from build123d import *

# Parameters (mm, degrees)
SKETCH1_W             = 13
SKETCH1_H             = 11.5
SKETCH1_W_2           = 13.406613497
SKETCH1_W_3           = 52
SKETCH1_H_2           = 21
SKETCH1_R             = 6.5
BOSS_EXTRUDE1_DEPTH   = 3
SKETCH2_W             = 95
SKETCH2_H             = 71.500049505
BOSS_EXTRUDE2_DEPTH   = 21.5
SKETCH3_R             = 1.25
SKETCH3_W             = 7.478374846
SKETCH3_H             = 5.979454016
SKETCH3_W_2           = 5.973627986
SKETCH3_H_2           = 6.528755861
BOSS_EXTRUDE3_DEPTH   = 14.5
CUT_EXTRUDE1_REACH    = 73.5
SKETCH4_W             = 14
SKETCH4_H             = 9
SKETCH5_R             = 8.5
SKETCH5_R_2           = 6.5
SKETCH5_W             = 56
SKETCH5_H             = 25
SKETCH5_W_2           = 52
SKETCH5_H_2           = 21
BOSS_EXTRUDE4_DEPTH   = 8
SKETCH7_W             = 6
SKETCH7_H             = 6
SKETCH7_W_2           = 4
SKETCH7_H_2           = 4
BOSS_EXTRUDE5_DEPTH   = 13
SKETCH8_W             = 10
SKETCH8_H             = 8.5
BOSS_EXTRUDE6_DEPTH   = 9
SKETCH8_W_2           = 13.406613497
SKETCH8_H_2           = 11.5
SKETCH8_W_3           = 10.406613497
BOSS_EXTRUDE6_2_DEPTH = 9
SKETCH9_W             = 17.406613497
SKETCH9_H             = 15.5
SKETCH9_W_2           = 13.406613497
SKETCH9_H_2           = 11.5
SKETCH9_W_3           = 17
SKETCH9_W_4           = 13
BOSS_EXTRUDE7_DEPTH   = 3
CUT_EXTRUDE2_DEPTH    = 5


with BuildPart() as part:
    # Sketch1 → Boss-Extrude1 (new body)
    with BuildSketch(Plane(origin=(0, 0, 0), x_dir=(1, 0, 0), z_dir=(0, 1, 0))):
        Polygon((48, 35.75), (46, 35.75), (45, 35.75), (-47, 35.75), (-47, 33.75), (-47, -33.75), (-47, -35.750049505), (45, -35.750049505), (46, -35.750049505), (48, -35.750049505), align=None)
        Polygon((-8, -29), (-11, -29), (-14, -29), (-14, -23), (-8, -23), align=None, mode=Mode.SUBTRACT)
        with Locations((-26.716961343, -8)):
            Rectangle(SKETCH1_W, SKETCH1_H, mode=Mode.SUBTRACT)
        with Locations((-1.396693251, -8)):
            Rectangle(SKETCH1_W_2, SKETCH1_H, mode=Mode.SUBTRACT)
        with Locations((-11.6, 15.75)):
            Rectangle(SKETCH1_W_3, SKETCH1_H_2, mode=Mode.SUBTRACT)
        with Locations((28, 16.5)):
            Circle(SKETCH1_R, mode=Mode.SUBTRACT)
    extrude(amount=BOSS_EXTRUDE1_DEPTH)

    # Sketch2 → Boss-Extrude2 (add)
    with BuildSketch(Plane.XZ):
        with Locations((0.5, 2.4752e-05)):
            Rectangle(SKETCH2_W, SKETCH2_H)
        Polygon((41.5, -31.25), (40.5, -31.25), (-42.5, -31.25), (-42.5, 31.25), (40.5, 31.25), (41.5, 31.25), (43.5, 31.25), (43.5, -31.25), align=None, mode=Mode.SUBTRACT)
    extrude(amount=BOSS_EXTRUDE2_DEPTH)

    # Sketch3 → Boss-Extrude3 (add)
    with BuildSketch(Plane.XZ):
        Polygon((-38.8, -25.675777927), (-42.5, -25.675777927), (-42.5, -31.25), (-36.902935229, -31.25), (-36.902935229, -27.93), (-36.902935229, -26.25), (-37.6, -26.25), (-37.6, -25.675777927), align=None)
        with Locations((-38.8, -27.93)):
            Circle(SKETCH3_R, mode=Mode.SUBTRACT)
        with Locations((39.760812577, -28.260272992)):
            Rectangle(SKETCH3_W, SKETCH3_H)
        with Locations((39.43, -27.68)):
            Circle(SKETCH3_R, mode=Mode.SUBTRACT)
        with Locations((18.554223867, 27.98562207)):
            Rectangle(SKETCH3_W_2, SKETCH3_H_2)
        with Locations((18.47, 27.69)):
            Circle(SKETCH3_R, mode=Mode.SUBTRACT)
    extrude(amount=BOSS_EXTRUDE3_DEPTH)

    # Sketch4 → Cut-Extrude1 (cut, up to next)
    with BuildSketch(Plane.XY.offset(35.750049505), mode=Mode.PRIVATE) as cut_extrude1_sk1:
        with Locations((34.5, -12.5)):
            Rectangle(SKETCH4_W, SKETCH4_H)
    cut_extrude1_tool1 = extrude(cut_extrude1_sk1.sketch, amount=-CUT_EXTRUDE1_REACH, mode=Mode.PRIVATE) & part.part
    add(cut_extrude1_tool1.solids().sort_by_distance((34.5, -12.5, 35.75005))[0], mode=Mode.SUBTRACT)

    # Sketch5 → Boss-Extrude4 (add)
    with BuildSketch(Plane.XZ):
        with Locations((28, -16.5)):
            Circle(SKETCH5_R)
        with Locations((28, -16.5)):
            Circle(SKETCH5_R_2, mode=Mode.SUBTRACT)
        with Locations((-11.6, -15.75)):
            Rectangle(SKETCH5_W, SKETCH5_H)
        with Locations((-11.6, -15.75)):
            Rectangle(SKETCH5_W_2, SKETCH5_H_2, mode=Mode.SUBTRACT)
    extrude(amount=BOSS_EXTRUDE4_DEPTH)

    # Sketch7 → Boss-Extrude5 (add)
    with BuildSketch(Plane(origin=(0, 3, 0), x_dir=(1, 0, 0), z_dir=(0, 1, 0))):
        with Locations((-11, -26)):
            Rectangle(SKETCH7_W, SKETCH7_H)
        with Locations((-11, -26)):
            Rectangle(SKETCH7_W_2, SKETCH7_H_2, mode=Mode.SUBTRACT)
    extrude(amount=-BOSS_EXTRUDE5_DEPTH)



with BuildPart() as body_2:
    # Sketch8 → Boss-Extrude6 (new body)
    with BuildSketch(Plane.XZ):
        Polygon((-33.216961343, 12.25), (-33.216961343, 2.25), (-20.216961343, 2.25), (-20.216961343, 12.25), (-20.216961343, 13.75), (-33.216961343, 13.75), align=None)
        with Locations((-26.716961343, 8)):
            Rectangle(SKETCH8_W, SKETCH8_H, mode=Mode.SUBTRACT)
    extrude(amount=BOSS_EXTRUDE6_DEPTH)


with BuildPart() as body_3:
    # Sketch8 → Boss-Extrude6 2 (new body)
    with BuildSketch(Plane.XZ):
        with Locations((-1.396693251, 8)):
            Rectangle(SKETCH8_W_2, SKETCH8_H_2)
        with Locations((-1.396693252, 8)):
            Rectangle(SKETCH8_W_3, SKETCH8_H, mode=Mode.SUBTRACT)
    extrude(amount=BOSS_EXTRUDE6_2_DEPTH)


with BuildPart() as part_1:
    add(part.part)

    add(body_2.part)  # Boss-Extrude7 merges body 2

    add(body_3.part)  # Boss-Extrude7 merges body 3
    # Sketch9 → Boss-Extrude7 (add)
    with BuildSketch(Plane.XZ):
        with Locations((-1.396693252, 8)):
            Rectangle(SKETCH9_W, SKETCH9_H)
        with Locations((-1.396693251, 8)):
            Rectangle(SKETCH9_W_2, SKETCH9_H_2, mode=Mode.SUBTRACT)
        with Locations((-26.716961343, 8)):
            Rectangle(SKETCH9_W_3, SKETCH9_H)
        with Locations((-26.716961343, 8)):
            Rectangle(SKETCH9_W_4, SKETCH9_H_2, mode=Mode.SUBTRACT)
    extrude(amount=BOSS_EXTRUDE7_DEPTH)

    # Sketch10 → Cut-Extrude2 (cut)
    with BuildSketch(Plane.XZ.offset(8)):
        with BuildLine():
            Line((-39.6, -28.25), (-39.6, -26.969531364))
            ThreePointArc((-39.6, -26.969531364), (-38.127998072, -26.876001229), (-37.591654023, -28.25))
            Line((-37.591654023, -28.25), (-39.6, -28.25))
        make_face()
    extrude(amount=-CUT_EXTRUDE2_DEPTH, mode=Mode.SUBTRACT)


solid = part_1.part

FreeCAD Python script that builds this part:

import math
import FreeCAD as App
import Part
import Sketcher


def add_polygon(sketch, points):
    """Adds a closed chain of lines whose ends are joined by coincident constraints."""
    first, n = sketch.GeometryCount, len(points)
    for a, b in zip(points, points[1:] + points[:1]):
        sketch.addGeometry(Part.LineSegment(App.Vector(*a, 0), App.Vector(*b, 0)), False)
    for i in range(n):
        sketch.addConstraint(Sketcher.Constraint("Coincident", first + i, 2, first + (i + 1) % n, 1))

doc = App.newDocument("Part")
body = doc.addObject("PartDesign::Body", "Body")

# Sketch on XZ plane
sketch1 = doc.addObject("Sketcher::SketchObject", "Sketch")
body.addObject(sketch1)
sketch1.AttachmentSupport = (doc.XZ_Plane, [""])
sketch1.MapMode = "FlatFace"
add_polygon(sketch1, [(48, -36), (-47, -36), (-47, 36), (48, 36)])  # lines 0-3
add_polygon(sketch1, [(-8, 23), (-8, 29), (-14, 29), (-14, 23)])  # lines 4-7
add_polygon(sketch1, [(-20, 14), (-33, 14), (-33, 2), (-20, 2)])  # lines 8-11
add_polygon(sketch1, [(5, 14), (-8, 14), (-8, 2), (5, 2)])  # lines 12-15
add_polygon(sketch1, [(14, -5), (-38, -5), (-38, -26), (14, -26)])  # lines 16-19
sketch1.addGeometry(Part.Circle(App.Vector(28, -16, 0), App.Vector(0, 0, 1), 6), False)  # 20
sketch1.addConstraint([
    Sketcher.Constraint("Horizontal", 0),
    Sketcher.Constraint("Vertical", 1),
    Sketcher.Constraint("Horizontal", 2),
    Sketcher.Constraint("Vertical", 3),
    Sketcher.Constraint("Vertical", 4),
    Sketcher.Constraint("Horizontal", 5),
    Sketcher.Constraint("Vertical", 6),
    Sketcher.Constraint("Horizontal", 7),
    Sketcher.Constraint("Horizontal", 8),
    Sketcher.Constraint("Vertical", 9),
    Sketcher.Constraint("Horizontal", 10),
    Sketcher.Constraint("Vertical", 11),
    Sketcher.Constraint("Horizontal", 12),
    Sketcher.Constraint("Vertical", 13),
    Sketcher.Constraint("Horizontal", 14),
    Sketcher.Constraint("Vertical", 15),
    Sketcher.Constraint("Horizontal", 16),
    Sketcher.Constraint("Vertical", 17),
    Sketcher.Constraint("Horizontal", 18),
    Sketcher.Constraint("Vertical", 19),
    Sketcher.Constraint("Horizontal", 11, 2, 12, 2),
    Sketcher.Constraint("Horizontal", 10, 2, 13, 2),
    Sketcher.Constraint("Equal", 7, 4),
    Sketcher.Constraint("Diameter", 20, 13.0),
    Sketcher.Constraint("DistanceX", 0, 2, 0, 1, 95.0),
    Sketcher.Constraint("DistanceX", 5, 2, 5, 1, 6.0),
    Sketcher.Constraint("DistanceX", 8, 2, 8, 1, 13.0),
    Sketcher.Constraint("DistanceX", 16, 2, 16, 1, 52.0),
    Sketcher.Constraint("DistanceY", 17, 2, 17, 1, 21.0),
    Sketcher.Constraint("DistanceY", 9, 2, 9, 1, 11.5),
    Sketcher.Constraint("DistanceX", -1, 1, 20, 3, 28.0),
    Sketcher.Constraint("DistanceX", 0, 2, -1, 1, 47.0),
    Sketcher.Constraint("DistanceX", 4, 2, -1, 1, 8.0),
    Sketcher.Constraint("DistanceY", -1, 1, 4, 2, 29.0),
    Sketcher.Constraint("DistanceY", 16, 2, 8, 2, 19.0),
    Sketcher.Constraint("DistanceY", 20, 3, -1, 1, 16.5),
    Sketcher.Constraint("DistanceX", 12, 2, -1, 1, 8.1),
    Sketcher.Constraint("DistanceX", 16, 2, -1, 1, 37.6),
    Sketcher.Constraint("DistanceY", 0, 2, 17, 2, 9.5),
    Sketcher.Constraint("DistanceY", 0, 2, -1, 1, 35.75),
    Sketcher.Constraint("DistanceY", 1, 1, 1, 2, 71.50005),
    Sketcher.Constraint("DistanceX", 12, 2, 12, 1, 13.406613),
    Sketcher.Constraint("DistanceX", 8, 2, -1, 1, 33.216961),
])
pad1 = doc.addObject("PartDesign::Pad", "Pad")
body.addObject(pad1)
pad1.Profile = sketch1
pad1.Length = 3
pad1.Reversed = True

# Sketch on XZ plane
sketch2 = doc.addObject("Sketcher::SketchObject", "Sketch001")
body.addObject(sketch2)
sketch2.AttachmentSupport = (doc.XZ_Plane, [""])
sketch2.MapMode = "FlatFace"
add_polygon(sketch2, [(-47, 36), (-47, -36), (48, -36), (48, 36)])  # lines 0-3
add_polygon(sketch2, [(44, -31), (-42, -31), (-42, 31), (44, 31)])  # lines 4-7
sketch2.addConstraint([
    Sketcher.Constraint("Vertical", 0),
    Sketcher.Constraint("Horizontal", 1),
    Sketcher.Constraint("Vertical", 2),
    Sketcher.Constraint("Horizontal", 3),
    Sketcher.Constraint("Horizontal", 4),
    Sketcher.Constraint("Vertical", 5),
    Sketcher.Constraint("Horizontal", 6),
    Sketcher.Constraint("Vertical", 7),
    Sketcher.Constraint("DistanceX", 1, 1, 1, 2, 95.0),
    Sketcher.Constraint("DistanceX", 4, 2, 4, 1, 86.0),
    Sketcher.Constraint("DistanceY", 5, 1, 5, 2, 62.5),
    Sketcher.Constraint("DistanceX", 0, 2, -1, 1, 47.0),
    Sketcher.Constraint("DistanceY", 0, 2, 5, 2, 67.0),
    Sketcher.Constraint("DistanceX", 4, 2, -1, 1, 42.5),
    Sketcher.Constraint("DistanceY", 0, 2, -1, 1, 35.75),
    Sketcher.Constraint("DistanceY", 0, 2, 0, 1, 71.50005),
])
pad2 = doc.addObject("PartDesign::Pad", "Pad001")
body.addObject(pad2)
pad2.Profile = sketch2
pad2.Length = 21.5

# Sketch on XZ plane
sketch3 = doc.addObject("Sketcher::SketchObject", "Sketch002")
body.addObject(sketch3)
sketch3.AttachmentSupport = (doc.XZ_Plane, [""])
sketch3.MapMode = "FlatFace"
add_polygon(sketch3, [(-42.5, -25.7), (-42.5, -31.2), (-36.9, -31.2), (-36.9, -26.2), (-37.6, -26.2), (-37.6, -25.7)])  # lines 0-5
sketch3.addGeometry(Part.Circle(App.Vector(-38.8, -27.9, 0), App.Vector(0, 0, 1), 1.2), False)  # 6
add_polygon(sketch3, [(36, -25.3), (36, -31.2), (43.5, -31.2), (43.5, -25.3)])  # lines 7-10
sketch3.addGeometry(Part.Circle(App.Vector(39.4, -27.7, 0), App.Vector(0, 0, 1), 1.2), False)  # 11
add_polygon(sketch3, [(15.6, 31.3), (15.6, 24.7), (21.5, 24.7), (21.5, 31.3)])  # lines 12-15
sketch3.addGeometry(Part.Circle(App.Vector(18.5, 27.7, 0), App.Vector(0, 0, 1), 1.2), False)  # 16
sketch3.addConstraint([
    Sketcher.Constraint("Vertical", 0),
    Sketcher.Constraint("Horizontal", 1),
    Sketcher.Constraint("Vertical", 2),
    Sketcher.Constraint("Horizontal", 3),
    Sketcher.Constraint("Vertical", 4),
    Sketcher.Constraint("Horizontal", 5),
    Sketcher.Constraint("Vertical", 7),
    Sketcher.Constraint("Horizontal", 8),
    Sketcher.Constraint("Vertical", 9),
    Sketcher.Constraint("Horizontal", 10),
    Sketcher.Constraint("Vertical", 12),
    Sketcher.Constraint("Horizontal", 13),
    Sketcher.Constraint("Vertical", 14),
    Sketcher.Constraint("Horizontal", 15),
    Sketcher.Constraint("Equal", 6, 11),
    Sketcher.Constraint("Equal", 11, 16),
    Sketcher.Constraint("Horizontal", 1, 2, 7, 2),
    Sketcher.Constraint("Diameter", 6, 2.5),
    Sketcher.Constraint("DistanceY", 2, 1, 2, 2, 5.0),
    Sketcher.Constraint("DistanceX", 5, 2, 5, 1, 4.9),
    Sketcher.Constraint("DistanceX", 6, 3, -1, 1, 38.8),
    Sketcher.Constraint("DistanceX", 0, 2, -1, 1, 42.5),
    Sketcher.Constraint("DistanceX", -1, 1, 8, 2, 43.5),
    Sketcher.Constraint("DistanceY", 6, 3, -1, 1, 27.93),
    Sketcher.Constraint("DistanceX", -1, 1, 11, 3, 39.43),
    Sketcher.Constraint("DistanceY", 11, 3, -1, 1, 27.68),
    Sketcher.Constraint("DistanceX", -1, 1, 16, 3, 18.47),
    Sketcher.Constraint("DistanceY", -1, 1, 16, 3, 27.69),
    Sketcher.Constraint("DistanceY", 0, 2, -1, 1, 31.25),
    Sketcher.Constraint("DistanceY", -1, 1, 14, 2, 31.25),
    Sketcher.Constraint("DistanceX", 1, 1, 1, 2, 5.597065),
    Sketcher.Constraint("DistanceX", 8, 1, 8, 2, 7.478375),
    Sketcher.Constraint("DistanceX", 13, 1, 13, 2, 5.973628),
    Sketcher.Constraint("DistanceY", 0, 2, 0, 1, 5.574222),
    Sketcher.Constraint("DistanceY", 7, 2, 7, 1, 5.979454),
    Sketcher.Constraint("DistanceY", 12, 2, 12, 1, 6.528756),
    Sketcher.Constraint("DistanceX", -1, 1, 12, 2, 15.56741),
])
pad3 = doc.addObject("PartDesign::Pad", "Pad002")
body.addObject(pad3)
pad3.Profile = sketch3
pad3.Length = 14.5

# Sketch on XY plane
sketch4 = doc.addObject("Sketcher::SketchObject", "Sketch003")
body.addObject(sketch4)
sketch4.AttachmentSupport = (doc.XY_Plane, [""])
sketch4.MapMode = "FlatFace"
sketch4.AttachmentOffset = App.Placement(App.Vector(0, 0, 35.75005), App.Rotation())
add_polygon(sketch4, [(28, -8), (28, -17), (42, -17), (42, -8)])  # lines 0-3
sketch4.addConstraint([
    Sketcher.Constraint("Vertical", 0),
    Sketcher.Constraint("Horizontal", 1),
    Sketcher.Constraint("Vertical", 2),
    Sketcher.Constraint("Horizontal", 3),
    Sketcher.Constraint("DistanceX", 1, 1, 1, 2, 14.0),
    Sketcher.Constraint("DistanceY", 0, 2, 0, 1, 9.0),
    Sketcher.Constraint("DistanceY", 0, 2, -1, 1, 17.0),
    Sketcher.Constraint("DistanceX", -1, 1, 0, 2, 27.5),
])
pocket1 = doc.addObject("PartDesign::Pocket", "Pocket")
body.addObject(pocket1)
pocket1.Profile = sketch4
pocket1.Type = "UpToFirst"

# Sketch on XZ plane
sketch5 = doc.addObject("Sketcher::SketchObject", "Sketch004")
body.addObject(sketch5)
sketch5.AttachmentSupport = (doc.XZ_Plane, [""])
sketch5.MapMode = "FlatFace"
sketch5.addGeometry(Part.Circle(App.Vector(28, -16, 0), App.Vector(0, 0, 1), 8), False)  # 0
sketch5.addGeometry(Part.Circle(App.Vector(28, -16, 0), App.Vector(0, 0, 1), 6), False)  # 1
add_polygon(sketch5, [(-40, -3), (-40, -28), (16, -28), (16, -3)])  # lines 2-5
add_polygon(sketch5, [(14, -26), (-38, -26), (-38, -5), (14, -5)])  # lines 6-9
sketch5.addConstraint([
    Sketcher.Constraint("Vertical", 2),
    Sketcher.Constraint("Horizontal", 3),
    Sketcher.Constraint("Vertical", 4),
    Sketcher.Constraint("Horizontal", 5),
    Sketcher.Constraint("Horizontal", 6),
    Sketcher.Constraint("Vertical", 7),
    Sketcher.Constraint("Horizontal", 8),
    Sketcher.Constraint("Vertical", 9),
    Sketcher.Constraint("Coincident", 1, 3, 0, 3),
    Sketcher.Constraint("Diameter", 0, 17.0),
    Sketcher.Constraint("Diameter", 1, 13.0),
    Sketcher.Constraint("DistanceX", 3, 1, 3, 2, 56.0),
    Sketcher.Constraint("DistanceX", 6, 2, 6, 1, 52.0),
    Sketcher.Constraint("DistanceY", 2, 2, 2, 1, 25.0),
    Sketcher.Constraint("DistanceY", 7, 1, 7, 2, 21.0),
    Sketcher.Constraint("DistanceX", -1, 1, 0, 3, 28.0),
    Sketcher.Constraint("DistanceX", 2, 2, 6, 2, 2.0),
    Sketcher.Constraint("DistanceY", 2, 2, 6, 2, 2.0),
    Sketcher.Constraint("DistanceY", 0, 3, -1, 1, 16.5),
    Sketcher.Constraint("DistanceX", 2, 2, -1, 1, 39.6),
    Sketcher.Constraint("DistanceY", 2, 2, -1, 1, 28.25),
])
pad4 = doc.addObject("PartDesign::Pad", "Pad003")
body.addObject(pad4)
pad4.Profile = sketch5
pad4.Length = 8

# Sketch on XZ plane
sketch6 = doc.addObject("Sketcher::SketchObject", "Sketch005")
body.addObject(sketch6)
sketch6.AttachmentSupport = (doc.XZ_Plane, [""])
sketch6.MapMode = "FlatFace"
sketch6.AttachmentOffset = App.Placement(App.Vector(0, 0, -3), App.Rotation())
add_polygon(sketch6, [(-14, 23), (-14, 29), (-8, 29), (-8, 23)])  # lines 0-3
add_polygon(sketch6, [(-9, 28), (-13, 28), (-13, 24), (-9, 24)])  # lines 4-7
sketch6.addConstraint([
    Sketcher.Constraint("Vertical", 0),
    Sketcher.Constraint("Horizontal", 1),
    Sketcher.Constraint("Vertical", 2),
    Sketcher.Constraint("Horizontal", 3),
    Sketcher.Constraint("Horizontal", 4),
    Sketcher.Constraint("Vertical", 5),
    Sketcher.Constraint("Horizontal", 6),
    Sketcher.Constraint("Vertical", 7),
    Sketcher.Constraint("Equal", 3, 0),
    Sketcher.Constraint("Equal", 6, 5),
    Sketcher.Constraint("DistanceX", 1, 1, 1, 2, 6.0),
    Sketcher.Constraint("DistanceX", 4, 2, 4, 1, 4.0),
    Sketcher.Constraint("DistanceX", 0, 2, -1, 1, 14.0),
    Sketcher.Constraint("DistanceY", -1, 1, 0, 2, 29.0),
    Sketcher.Constraint("DistanceX", 4, 2, -1, 1, 13.0),
    Sketcher.Constraint("DistanceY", -1, 1, 4, 2, 28.0),
])
pad5 = doc.addObject("PartDesign::Pad", "Pad004")
body.addObject(pad5)
pad5.Profile = sketch6
pad5.Length = 13
body2 = doc.addObject("PartDesign::Body", "Body001")

# Sketch on XZ plane
sketch7 = doc.addObject("Sketcher::SketchObject", "Sketch006")
body2.addObject(sketch7)
sketch7.AttachmentSupport = (doc.getObject("XZ_Plane001"), [""])
sketch7.MapMode = "FlatFace"
add_polygon(sketch7, [(-33, 2), (-20, 2), (-20, 14), (-33, 14)])  # lines 0-3
add_polygon(sketch7, [(-22, 4), (-32, 4), (-32, 12), (-22, 12)])  # lines 4-7
sketch7.addConstraint([
    Sketcher.Constraint("Horizontal", 0),
    Sketcher.Constraint("Vertical", 1),
    Sketcher.Constraint("Horizontal", 2),
    Sketcher.Constraint("Vertical", 3),
    Sketcher.Constraint("Horizontal", 4),
    Sketcher.Constraint("Vertical", 5),
    Sketcher.Constraint("Horizontal", 6),
    Sketcher.Constraint("Vertical", 7),
    Sketcher.Constraint("DistanceX", 0, 1, 0, 2, 13.0),
    Sketcher.Constraint("DistanceX", 4, 2, 4, 1, 10.0),
    Sketcher.Constraint("DistanceY", 1, 1, 1, 2, 11.5),
    Sketcher.Constraint("DistanceY", 5, 1, 5, 2, 8.5),
    Sketcher.Constraint("DistanceY", 4, 2, 2, 2, 10.0),
    Sketcher.Constraint("DistanceX", 3, 2, 4, 2, 1.5),
    Sketcher.Constraint("DistanceY", -1, 1, 0, 2, 2.25),
    Sketcher.Constraint("DistanceX", 0, 2, -1, 1, 20.216961),
])
pad6 = doc.addObject("PartDesign::Pad", "Pad005")
body2.addObject(pad6)
pad6.Profile = sketch7
pad6.Length = 9
body3 = doc.addObject("PartDesign::Body", "Body002")

# Sketch on XZ plane
sketch8 = doc.addObject("Sketcher::SketchObject", "Sketch007")
body3.addObject(sketch8)
sketch8.AttachmentSupport = (doc.getObject("XZ_Plane002"), [""])
sketch8.MapMode = "FlatFace"
add_polygon(sketch8, [(-8, 14), (-8, 2), (5, 2), (5, 14)])  # lines 0-3
add_polygon(sketch8, [(4, 4), (-7, 4), (-7, 12), (4, 12)])  # lines 4-7
sketch8.addConstraint([
    Sketcher.Constraint("Vertical", 0),
    Sketcher.Constraint("Horizontal", 1),
    Sketcher.Constraint("Vertical", 2),
    Sketcher.Constraint("Horizontal", 3),
    Sketcher.Constraint("Horizontal", 4),
    Sketcher.Constraint("Vertical", 5),
    Sketcher.Constraint("Horizontal", 6),
    Sketcher.Constraint("Vertical", 7),
    Sketcher.Constraint("DistanceY", 0, 2, 0, 1, 11.5),
    Sketcher.Constraint("DistanceY", 5, 1, 5, 2, 8.5),
    Sketcher.Constraint("DistanceY", 4, 2, 3, 2, 10.0),
    Sketcher.Constraint("DistanceX", 0, 2, -1, 1, 8.1),
    Sketcher.Constraint("DistanceX", 4, 2, -1, 1, 6.6),
    Sketcher.Constraint("DistanceX", 6, 2, 2, 2, 1.5),
    Sketcher.Constraint("DistanceY", -1, 1, 0, 2, 2.25),
    Sketcher.Constraint("DistanceX", 1, 1, 1, 2, 13.406613),
])
pad7 = doc.addObject("PartDesign::Pad", "Pad006")
body3.addObject(pad7)
pad7.Profile = sketch8
pad7.Length = 9
body.AllowCompound = True
doc.recompute()

boolean = doc.addObject("PartDesign::Boolean", "Boolean")
body.addObject(boolean)
boolean.Type = "Fuse"
boolean.addObjects([body2])
doc.recompute()

boolean2 = doc.addObject("PartDesign::Boolean", "Boolean001")
body.addObject(boolean2)
boolean2.Type = "Fuse"
boolean2.addObjects([body3])

# Sketch on XZ plane
sketch9 = doc.addObject("Sketcher::SketchObject", "Sketch008")
body.addObject(sketch9)
sketch9.AttachmentSupport = (doc.XZ_Plane, [""])
sketch9.MapMode = "FlatFace"
add_polygon(sketch9, [(-10, 16), (-10, 0), (7, 0), (7, 16)])  # lines 0-3
add_polygon(sketch9, [(5, 2), (-8, 2), (-8, 14), (5, 14)])  # lines 4-7
add_polygon(sketch9, [(-35, 16), (-35, 0), (-18, 0), (-18, 16)])  # lines 8-11
add_polygon(sketch9, [(-20, 2), (-33, 2), (-33, 14), (-20, 14)])  # lines 12-15
sketch9.addConstraint([
    Sketcher.Constraint("Vertical", 0),
    Sketcher.Constraint("Horizontal", 1),
    Sketcher.Constraint("Vertical", 2),
    Sketcher.Constraint("Horizontal", 3),
    Sketcher.Constraint("Horizontal", 4),
    Sketcher.Constraint("Vertical", 5),
    Sketcher.Constraint("Horizontal", 6),
    Sketcher.Constraint("Vertical", 7),
    Sketcher.Constraint("Vertical", 8),
    Sketcher.Constraint("Horizontal", 9),
    Sketcher.Constraint("Vertical", 10),
    Sketcher.Constraint("Horizontal", 11),
    Sketcher.Constraint("Horizontal", 12),
    Sketcher.Constraint("Vertical", 13),
    Sketcher.Constraint("Horizontal", 14),
    Sketcher.Constraint("Vertical", 15),
    Sketcher.Constraint("Horizontal", 1, 2, 8, 2),
    Sketcher.Constraint("Horizontal", 3, 2, 10, 2),
    Sketcher.Constraint("Horizontal", 7, 2, 12, 2),
    Sketcher.Constraint("Horizontal", 6, 2, 13, 2),
    Sketcher.Constraint("DistanceX", 9, 1, 9, 2, 17.0),
    Sketcher.Constraint("DistanceX", 12, 2, 12, 1, 13.0),
    Sketcher.Constraint("DistanceY", 0, 2, 0, 1, 15.5),
    Sketcher.Constraint("DistanceY", 5, 1, 5, 2, 11.5),
    Sketcher.Constraint("DistanceX", 0, 2, 4, 2, 2.0),
    Sketcher.Constraint("DistanceY", 0, 2, 4, 2, 2.0),
    Sketcher.Constraint("DistanceX", 6, 2, 2, 2, 2.0),
    Sketcher.Constraint("DistanceX", 8, 2, 12, 2, 2.0),
    Sketcher.Constraint("DistanceX", 0, 2, -1, 1, 10.1),
    Sketcher.Constraint("DistanceY", -1, 1, 0, 2, 0.25),
    Sketcher.Constraint("DistanceX", 1, 1, 1, 2, 17.406613),
    Sketcher.Constraint("DistanceX", 8, 2, -1, 1, 35.216961),
])
pad8 = doc.addObject("PartDesign::Pad", "Pad007")
body.addObject(pad8)
pad8.Profile = sketch9
pad8.Length = 3

# Sketch on XZ plane
sketch10 = doc.addObject("Sketcher::SketchObject", "Sketch009")
body.addObject(sketch10)
sketch10.AttachmentSupport = (doc.XZ_Plane, [""])
sketch10.MapMode = "FlatFace"
sketch10.AttachmentOffset = App.Placement(App.Vector(0, 0, 8), App.Rotation())
sketch10.addGeometry([
    Part.LineSegment(App.Vector(-39.6, -27, 0), App.Vector(-39.6, -28.2, 0)),
    Part.LineSegment(App.Vector(-39.6, -28.2, 0), App.Vector(-37.6, -28.2, 0)),
    Part.ArcOfCircle(Part.Circle(App.Vector(-38.8, -27.9, 0), App.Vector(0, 0, 1), 1.2), math.radians(-15), math.radians(130)),
], False)
sketch10.addConstraint([
    Sketcher.Constraint("Coincident", 0, 2, 1, 1),
    Sketcher.Constraint("Coincident", 1, 2, 2, 1),
    Sketcher.Constraint("Coincident", 2, 2, 0, 1),
    Sketcher.Constraint("Vertical", 0),
    Sketcher.Constraint("Horizontal", 1),
    Sketcher.Constraint("Radius", 2, 1.25),
    Sketcher.Constraint("DistanceX", 2, 3, -1, 1, 38.8),
    Sketcher.Constraint("DistanceX", 0, 2, -1, 1, 39.6),
    Sketcher.Constraint("DistanceY", 2, 3, -1, 1, 27.93),
    Sketcher.Constraint("DistanceY", 0, 2, -1, 1, 28.25),
])
pocket2 = doc.addObject("PartDesign::Pocket", "Pocket001")
body.addObject(pocket2)
pocket2.Profile = sketch10
pocket2.Length = 5

doc.recompute()
